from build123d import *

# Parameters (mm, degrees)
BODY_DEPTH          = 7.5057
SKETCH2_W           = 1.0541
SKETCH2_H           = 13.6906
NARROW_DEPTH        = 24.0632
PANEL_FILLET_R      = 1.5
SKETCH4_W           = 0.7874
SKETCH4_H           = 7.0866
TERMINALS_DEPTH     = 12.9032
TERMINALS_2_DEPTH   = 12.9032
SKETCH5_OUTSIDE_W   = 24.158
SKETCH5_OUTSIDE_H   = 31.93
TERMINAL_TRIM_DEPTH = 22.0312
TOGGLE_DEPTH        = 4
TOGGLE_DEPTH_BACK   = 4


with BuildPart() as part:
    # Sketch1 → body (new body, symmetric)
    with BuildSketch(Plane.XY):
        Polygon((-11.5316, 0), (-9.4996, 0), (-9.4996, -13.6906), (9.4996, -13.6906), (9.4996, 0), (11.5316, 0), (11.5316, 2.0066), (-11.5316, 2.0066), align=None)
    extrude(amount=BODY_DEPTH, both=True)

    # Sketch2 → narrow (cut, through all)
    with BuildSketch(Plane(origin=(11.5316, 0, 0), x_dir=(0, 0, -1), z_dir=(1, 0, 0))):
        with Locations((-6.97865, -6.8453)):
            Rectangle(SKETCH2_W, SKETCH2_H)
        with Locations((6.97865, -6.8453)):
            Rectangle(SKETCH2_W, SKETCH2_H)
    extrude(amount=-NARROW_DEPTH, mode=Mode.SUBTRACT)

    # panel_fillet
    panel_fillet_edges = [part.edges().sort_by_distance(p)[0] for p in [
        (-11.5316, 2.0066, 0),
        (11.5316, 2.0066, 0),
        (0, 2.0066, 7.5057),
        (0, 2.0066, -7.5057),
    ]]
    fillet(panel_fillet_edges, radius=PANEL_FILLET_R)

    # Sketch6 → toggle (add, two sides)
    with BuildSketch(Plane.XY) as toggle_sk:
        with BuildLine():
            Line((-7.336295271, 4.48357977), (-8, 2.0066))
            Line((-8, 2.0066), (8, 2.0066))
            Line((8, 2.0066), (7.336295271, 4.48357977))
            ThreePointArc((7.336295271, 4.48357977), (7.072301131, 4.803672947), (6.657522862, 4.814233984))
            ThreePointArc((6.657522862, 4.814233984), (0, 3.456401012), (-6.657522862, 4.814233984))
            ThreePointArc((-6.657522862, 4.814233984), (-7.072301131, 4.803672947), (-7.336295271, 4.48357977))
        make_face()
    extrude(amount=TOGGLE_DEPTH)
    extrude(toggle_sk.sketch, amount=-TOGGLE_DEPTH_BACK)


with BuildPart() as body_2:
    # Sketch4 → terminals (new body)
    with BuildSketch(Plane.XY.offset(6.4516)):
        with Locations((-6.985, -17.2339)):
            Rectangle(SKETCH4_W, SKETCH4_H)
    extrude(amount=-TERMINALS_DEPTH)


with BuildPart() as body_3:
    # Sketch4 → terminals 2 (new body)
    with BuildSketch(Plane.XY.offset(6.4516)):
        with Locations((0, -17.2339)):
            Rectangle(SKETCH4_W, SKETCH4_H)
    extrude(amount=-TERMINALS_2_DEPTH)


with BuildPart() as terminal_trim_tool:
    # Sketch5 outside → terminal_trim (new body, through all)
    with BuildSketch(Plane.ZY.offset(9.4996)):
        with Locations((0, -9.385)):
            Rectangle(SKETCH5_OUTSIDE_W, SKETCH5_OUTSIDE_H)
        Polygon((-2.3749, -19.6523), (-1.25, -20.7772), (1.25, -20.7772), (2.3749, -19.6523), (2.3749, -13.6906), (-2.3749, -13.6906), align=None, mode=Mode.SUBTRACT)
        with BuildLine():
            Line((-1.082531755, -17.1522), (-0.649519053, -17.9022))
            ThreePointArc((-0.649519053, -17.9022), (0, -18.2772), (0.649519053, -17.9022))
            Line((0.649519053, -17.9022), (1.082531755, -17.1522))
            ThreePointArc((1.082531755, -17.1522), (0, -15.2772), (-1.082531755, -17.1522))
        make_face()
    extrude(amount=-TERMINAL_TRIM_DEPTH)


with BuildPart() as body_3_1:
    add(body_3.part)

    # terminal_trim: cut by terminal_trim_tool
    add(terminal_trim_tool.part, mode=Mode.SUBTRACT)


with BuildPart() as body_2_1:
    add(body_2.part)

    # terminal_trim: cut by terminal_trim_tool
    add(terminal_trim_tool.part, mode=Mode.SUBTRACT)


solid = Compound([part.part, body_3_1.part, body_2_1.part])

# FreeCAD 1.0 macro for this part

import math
import FreeCAD as App
import Part
import Sketcher
from FreeCAD import Vector
Q = App.Units.Quantity


def edges_at(feature, points):
    """Names of the edges that pass closest to the given points."""
    edges = feature.Shape.Edges
    near = lambda p: min(range(len(edges)), key=lambda i: edges[i].distToShape(Part.Vertex(*p))[0])
    return sorted({f"Edge{near(p) + 1}" for p in points})

doc = App.newDocument("Part")
body = doc.addObject("PartDesign::Body", "Body")

sketch1 = doc.addObject("Sketcher::SketchObject", "Sketch")
body.addObject(sketch1)
sketch1.AttachmentSupport = (doc.XY_Plane, [""])
sketch1.MapMode = "FlatFace"
sketch1.addGeometry(Part.LineSegment(Vector(-11.5, 0, 0), Vector(-9.5, 0, 0)), False)
sketch1.addGeometry(Part.LineSegment(Vector(-9.5, 0, 0), Vector(-9.5, -13.7, 0)), False)
sketch1.addGeometry(Part.LineSegment(Vector(-9.5, -13.7, 0), Vector(9.5, -13.7, 0)), False)
sketch1.addGeometry(Part.LineSegment(Vector(9.5, -13.7, 0), Vector(9.5, 0, 0)), False)
sketch1.addGeometry(Part.LineSegment(Vector(9.5, 0, 0), Vector(11.5, 0, 0)), False)
sketch1.addGeometry(Part.LineSegment(Vector(11.5, 0, 0), Vector(11.5, 2, 0)), False)
sketch1.addGeometry(Part.LineSegment(Vector(11.5, 2, 0), Vector(-11.5, 2, 0)), False)
sketch1.addGeometry(Part.LineSegment(Vector(-11.5, 2, 0), Vector(-11.5, 0, 0)), False)
sketch1.addConstraint(Sketcher.Constraint("Coincident", 0, 2, 1, 1))
sketch1.addConstraint(Sketcher.Constraint("Coincident", 1, 2, 2, 1))
sketch1.addConstraint(Sketcher.Constraint("Coincident", 2, 2, 3, 1))
sketch1.addConstraint(Sketcher.Constraint("Coincident", 3, 2, 4, 1))
sketch1.addConstraint(Sketcher.Constraint("Coincident", 4, 2, 5, 1))
sketch1.addConstraint(Sketcher.Constraint("Coincident", 5, 2, 6, 1))
sketch1.addConstraint(Sketcher.Constraint("Coincident", 6, 2, 7, 1))
sketch1.addConstraint(Sketcher.Constraint("Coincident", 7, 2, 0, 1))
sketch1.addConstraint(Sketcher.Constraint("Horizontal", 0))
sketch1.addConstraint(Sketcher.Constraint("Vertical", 1))
sketch1.addConstraint(Sketcher.Constraint("Horizontal", 2))
sketch1.addConstraint(Sketcher.Constraint("Vertical", 3))
sketch1.addConstraint(Sketcher.Constraint("Horizontal", 4))
sketch1.addConstraint(Sketcher.Constraint("Vertical", 5))
sketch1.addConstraint(Sketcher.Constraint("Horizontal", 6))
sketch1.addConstraint(Sketcher.Constraint("Vertical", 7))
sketch1.addConstraint(Sketcher.Constraint("Symmetric", 0, 2, 3, 2, -1, 1))
sketch1.addConstraint(Sketcher.Constraint("Symmetric", 4, 2, 7, 2, -2))
sketch1.addConstraint(Sketcher.Constraint("DistanceX", 0, 1, 0, 2, Q("0.08 in")))
sketch1.addConstraint(Sketcher.Constraint("DistanceX", 2, 1, 2, 2, Q("0.748 in")))
sketch1.addConstraint(Sketcher.Constraint("DistanceY", 1, 2, 1, 1, Q("0.539 in")))
sketch1.addConstraint(Sketcher.Constraint("DistanceY", 5, 1, 5, 2, Q("0.079 in")))
pad1 = doc.addObject("PartDesign::Pad", "Pad")
body.addObject(pad1)
pad1.Profile = sketch1
pad1.Length = Q("0.591 in")
pad1.Midplane = True

sketch2 = doc.addObject("Sketcher::SketchObject", "Sketch001")
body.addObject(sketch2)
sketch2.AttachmentSupport = (doc.YZ_Plane, [""])
sketch2.MapMode = "FlatFace"
sketch2.AttachmentOffset = App.Placement(Vector(0, 0, 0.454 * 25.4), App.Rotation())
sketch2.addGeometry(Part.LineSegment(Vector(0, 7.5, 0), Vector(-13.7, 7.5, 0)), False)
sketch2.addGeometry(Part.LineSegment(Vector(-13.7, 7.5, 0), Vector(-13.7, 6.5, 0)), False)
sketch2.addGeometry(Part.LineSegment(Vector(-13.7, 6.5, 0), Vector(0, 6.5, 0)), False)
sketch2.addGeometry(Part.LineSegment(Vector(0, 6.5, 0), Vector(0, 7.5, 0)), False)
sketch2.addGeometry(Part.LineSegment(Vector(0, -6.5, 0), Vector(-13.7, -6.5, 0)), False)
sketch2.addGeometry(Part.LineSegment(Vector(-13.7, -6.5, 0), Vector(-13.7, -7.5, 0)), False)
sketch2.addGeometry(Part.LineSegment(Vector(-13.7, -7.5, 0), Vector(0, -7.5, 0)), False)
sketch2.addGeometry(Part.LineSegment(Vector(0, -7.5, 0), Vector(0, -6.5, 0)), False)
sketch2.addConstraint(Sketcher.Constraint("Coincident", 0, 2, 1, 1))
sketch2.addConstraint(Sketcher.Constraint("Coincident", 1, 2, 2, 1))
sketch2.addConstraint(Sketcher.Constraint("Coincident", 2, 2, 3, 1))
sketch2.addConstraint(Sketcher.Constraint("Coincident", 3, 2, 0, 1))
sketch2.addConstraint(Sketcher.Constraint("Coincident", 4, 2, 5, 1))
sketch2.addConstraint(Sketcher.Constraint("Coincident", 5, 2, 6, 1))
sketch2.addConstraint(Sketcher.Constraint("Coincident", 6, 2, 7, 1))
sketch2.addConstraint(Sketcher.Constraint("Coincident", 7, 2, 4, 1))
sketch2.addConstraint(Sketcher.Constraint("Horizontal", 0))
sketch2.addConstraint(Sketcher.Constraint("Vertical", 1))
sketch2.addConstraint(Sketcher.Constraint("Horizontal", 2))
sketch2.addConstraint(Sketcher.Constraint("Vertical", 3))
sketch2.addConstraint(Sketcher.Constraint("Horizontal", 4))
sketch2.addConstraint(Sketcher.Constraint("Vertical", 5))
sketch2.addConstraint(Sketcher.Constraint("Horizontal", 6))
sketch2.addConstraint(Sketcher.Constraint("Vertical", 7))
sketch2.addConstraint(Sketcher.Constraint("Symmetric", 3, 2, 6, 2, -1, 1))
sketch2.addConstraint(Sketcher.Constraint("Symmetric", 1, 2, 4, 2, -1))
sketch2.addConstraint(Sketcher.Constraint("PointOnObject", 2, 2, -2))
sketch2.addConstraint(Sketcher.Constraint("DistanceX", 0, 2, 0, 1, Q("0.539 in")))
sketch2.addConstraint(Sketcher.Constraint("DistanceY", 1, 2, 1, 1, Q("0.0415 in")))
sketch2.addConstraint(Sketcher.Constraint("DistanceY", -1, 1, 1, 2, Q("0.254 in")))
pocket1 = doc.addObject("PartDesign::Pocket", "Pocket")
body.addObject(pocket1)
pocket1.Profile = sketch2
pocket1.Type = "ThroughAll"
doc.recompute()

fillet = doc.addObject("PartDesign::Fillet", "Fillet")
body.addObject(fillet)
fillet.Base = (pocket1, edges_at(pocket1, [
    (-11.532, 2.007, 0),
    (11.532, 2.007, 0),
    (0, 2.007, 7.506),
    (0, 2.007, -7.506),
]))
fillet.Radius = 1.5

sketch3 = doc.addObject("Sketcher::SketchObject", "Sketch002")
body.addObject(sketch3)
sketch3.AttachmentSupport = (doc.XY_Plane, [""])
sketch3.MapMode = "FlatFace"
sketch3.addGeometry(Part.LineSegment(Vector(-7.3, 4.5, 0), Vector(-8, 2, 0)), False)
sketch3.addGeometry(Part.LineSegment(Vector(-8, 2, 0), Vector(8, 2, 0)), False)
sketch3.addGeometry(Part.LineSegment(Vector(8, 2, 0), Vector(7.3, 4.5, 0)), False)
sketch3.addGeometry(Part.ArcOfCircle(Part.Circle(Vector(6.9, 4.4, 0), Vector(0, 0, 1), 0.5), math.radians(15), math.radians(113)), False)
sketch3.addGeometry(Part.ArcOfCircle(Part.Circle(Vector(0, 20.5, 0), Vector(0, 0, 1), 17), math.radians(-113), math.radians(-67)), False)
sketch3.addGeometry(Part.ArcOfCircle(Part.Circle(Vector(-6.9, 4.4, 0), Vector(0, 0, 1), 0.5), math.radians(67), math.radians(165)), False)
sketch3.addConstraint(Sketcher.Constraint("Coincident", 0, 2, 1, 1))
sketch3.addConstraint(Sketcher.Constraint("Coincident", 1, 2, 2, 1))
sketch3.addConstraint(Sketcher.Constraint("Tangent", 2, 2, 3, 1))
sketch3.addConstraint(Sketcher.Constraint("Tangent", 3, 2, 4, 2))
sketch3.addConstraint(Sketcher.Constraint("Tangent", 4, 1, 5, 1))
sketch3.addConstraint(Sketcher.Constraint("Tangent", 5, 2, 0, 1))
sketch3.addConstraint(Sketcher.Constraint("Horizontal", 1))
sketch3.addConstraint(Sketcher.Constraint("Equal", 3, 5))
sketch3.addConstraint(Sketcher.Constraint("Symmetric", 3, 3, 5, 3, -2))
sketch3.addConstraint(Sketcher.Constraint("Horizontal", 2, 2, 5, 2))
sketch3.addConstraint(Sketcher.Constraint("Angle", 0, Q("-105 deg")))
sketch3.addConstraint(Sketcher.Constraint("Radius", 3, Q("0.5 mm")))
sketch3.addConstraint(Sketcher.Constraint("Radius", 4, Q("17 mm")))
sketch3.addConstraint(Sketcher.Constraint("DistanceY", -1, 1, 0, 2, Q("0.079 in")))
sketch3.addConstraint(Sketcher.Constraint("DistanceX", 1, 1, 1, 2, Q("16 mm")))
sketch3.addConstraint(Sketcher.Constraint("DistanceY", -1, 1, 4, 3, Q("20.456401 mm")))
pad2 = doc.addObject("PartDesign::Pad", "Pad001")
body.addObject(pad2)
pad2.Profile = sketch3
pad2.Type = "TwoLengths"
pad2.Length = 4
pad2.Length2 = 4
body2 = doc.addObject("PartDesign::Body", "Body001")

sketch4 = doc.addObject("Sketcher::SketchObject", "Sketch003")
body2.addObject(sketch4)
sketch4.AttachmentSupport = (doc.getObject("XY_Plane001"), [""])
sketch4.MapMode = "FlatFace"
sketch4.AttachmentOffset = App.Placement(Vector(0, 0, 0.254 * 25.4), App.Rotation())
sketch4.addGeometry(Part.LineSegment(Vector(-7.4, -13.7, 0), Vector(-7.4, -20.8, 0)), False)
sketch4.addGeometry(Part.LineSegment(Vector(-7.4, -20.8, 0), Vector(-6.6, -20.8, 0)), False)
sketch4.addGeometry(Part.LineSegment(Vector(-6.6, -20.8, 0), Vector(-6.6, -13.7, 0)), False)
sketch4.addGeometry(Part.LineSegment(Vector(-6.6, -13.7, 0), Vector(-7.4, -13.7, 0)), False)
sketch4.addConstraint(Sketcher.Constraint("Coincident", 0, 2, 1, 1))
sketch4.addConstraint(Sketcher.Constraint("Coincident", 1, 2, 2, 1))
sketch4.addConstraint(Sketcher.Constraint("Coincident", 2, 2, 3, 1))
sketch4.addConstraint(Sketcher.Constraint("Coincident", 3, 2, 0, 1))
sketch4.addConstraint(Sketcher.Constraint("Vertical", 0))
sketch4.addConstraint(Sketcher.Constraint("Horizontal", 1))
sketch4.addConstraint(Sketcher.Constraint("Vertical", 2))
sketch4.addConstraint(Sketcher.Constraint("Horizontal", 3))
sketch4.addConstraint(Sketcher.Constraint("DistanceX", 1, 1, 1, 2, Q("0.031 in")))
sketch4.addConstraint(Sketcher.Constraint("DistanceY", 0, 2, 0, 1, Q("0.279 in")))
sketch4.addConstraint(Sketcher.Constraint("DistanceY", 0, 2, -1, 1, Q("0.818 in")))
sketch4.addConstraint(Sketcher.Constraint("DistanceX", 0, 2, -1, 1, Q("0.2905 in")))
pad3 = doc.addObject("PartDesign::Pad", "Pad002")
body2.addObject(pad3)
pad3.Profile = sketch4
pad3.Length = Q("0.508 in")
pad3.Reversed = True
body3 = doc.addObject("PartDesign::Body", "Body002")

sketch5 = doc.addObject("Sketcher::SketchObject", "Sketch004")
body3.addObject(sketch5)
sketch5.AttachmentSupport = (doc.getObject("XY_Plane002"), [""])
sketch5.MapMode = "FlatFace"
sketch5.AttachmentOffset = App.Placement(Vector(0, 0, 0.254 * 25.4), App.Rotation())
sketch5.addGeometry(Part.LineSegment(Vector(-0.4, -13.7, 0), Vector(-0.4, -20.8, 0)), False)
sketch5.addGeometry(Part.LineSegment(Vector(-0.4, -20.8, 0), Vector(0.4, -20.8, 0)), False)
sketch5.addGeometry(Part.LineSegment(Vector(0.4, -20.8, 0), Vector(0.4, -13.7, 0)), False)
sketch5.addGeometry(Part.LineSegment(Vector(0.4, -13.7, 0), Vector(-0.4, -13.7, 0)), False)
sketch5.addConstraint(Sketcher.Constraint("Coincident", 0, 2, 1, 1))
sketch5.addConstraint(Sketcher.Constraint("Coincident", 1, 2, 2, 1))
sketch5.addConstraint(Sketcher.Constraint("Coincident", 2, 2, 3, 1))
sketch5.addConstraint(Sketcher.Constraint("Coincident", 3, 2, 0, 1))
sketch5.addConstraint(Sketcher.Constraint("Vertical", 0))
sketch5.addConstraint(Sketcher.Constraint("Horizontal", 1))
sketch5.addConstraint(Sketcher.Constraint("Vertical", 2))
sketch5.addConstraint(Sketcher.Constraint("Horizontal", 3))
sketch5.addConstraint(Sketcher.Constraint("DistanceX", 1, 1, 1, 2, Q("0.031 in")))
sketch5.addConstraint(Sketcher.Constraint("DistanceY", 0, 2, 0, 1, Q("0.279 in")))
sketch5.addConstraint(Sketcher.Constraint("DistanceY", 0, 2, -1, 1, Q("0.818 in")))
sketch5.addConstraint(Sketcher.Constraint("DistanceX", 0, 2, -1, 1, Q("0.0155 in")))
pad4 = doc.addObject("PartDesign::Pad", "Pad003")
body3.addObject(pad4)
pad4.Profile = sketch5
pad4.Length = Q("0.508 in")
pad4.Reversed = True
body4 = doc.addObject("PartDesign::Body", "Body003")
body4.AllowCompound = True

sketch6 = doc.addObject("Sketcher::SketchObject", "Sketch005")
body4.addObject(sketch6)
sketch6.AttachmentSupport = (doc.getObject("YZ_Plane003"), [""])
sketch6.MapMode = "FlatFace"
sketch6.AttachmentOffset = App.Placement(Vector(0, 0, -0.374 * 25.4), App.Rotation())
sketch6.addGeometry(Part.LineSegment(Vector(6.6, -12.1, 0), Vector(-25.4, -12.1, 0)), False)
sketch6.addGeometry(Part.LineSegment(Vector(-25.4, -12.1, 0), Vector(-25.4, 12.1, 0)), False)
sketch6.addGeometry(Part.LineSegment(Vector(-25.4, 12.1, 0), Vector(6.6, 12.1, 0)), False)
sketch6.addGeometry(Part.LineSegment(Vector(6.6, 12.1, 0), Vector(6.6, -12.1, 0)), False)
sketch6.addGeometry(Part.LineSegment(Vector(-20.8, -1.2, 0), Vector(-19.7, -2.4, 0)), False)
sketch6.addGeometry(Part.LineSegment(Vector(-19.7, -2.4, 0), Vector(-13.7, -2.4, 0)), False)
sketch6.addGeometry(Part.LineSegment(Vector(-13.7, -2.4, 0), Vector(-13.7, 2.4, 0)), False)
sketch6.addGeometry(Part.LineSegment(Vector(-13.7, 2.4, 0), Vector(-19.7, 2.4, 0)), False)
sketch6.addGeometry(Part.LineSegment(Vector(-19.7, 2.4, 0), Vector(-20.8, 1.2, 0)), False)
sketch6.addGeometry(Part.LineSegment(Vector(-20.8, 1.2, 0), Vector(-20.8, -1.2, 0)), False)
sketch6.addGeometry(Part.LineSegment(Vector(-17.2, -1.1, 0), Vector(-17.9, -0.6, 0)), False)
sketch6.addGeometry(Part.ArcOfCircle(Part.Circle(Vector(-17.5, 0, 0), Vector(0, 0, 1), 0.8), math.radians(120), math.radians(240)), False)
sketch6.addGeometry(Part.LineSegment(Vector(-17.9, 0.6, 0), Vector(-17.2, 1.1, 0)), False)
sketch6.addGeometry(Part.ArcOfCircle(Part.Circle(Vector(-16.5, 0, 0), Vector(0, 0, 1), 1.2), math.radians(-120), math.radians(120)), False)
sketch6.addConstraint(Sketcher.Constraint("Coincident", 0, 2, 1, 1))
sketch6.addConstraint(Sketcher.Constraint("Coincident", 1, 2, 2, 1))
sketch6.addConstraint(Sketcher.Constraint("Coincident", 2, 2, 3, 1))
sketch6.addConstraint(Sketcher.Constraint("Coincident", 3, 2, 0, 1))
sketch6.addConstraint(Sketcher.Constraint("Coincident", 4, 2, 5, 1))
sketch6.addConstraint(Sketcher.Constraint("Coincident", 5, 2, 6, 1))
sketch6.addConstraint(Sketcher.Constraint("Coincident", 6, 2, 7, 1))
sketch6.addConstraint(Sketcher.Constraint("Coincident", 7, 2, 8, 1))
sketch6.addConstraint(Sketcher.Constraint("Coincident", 8, 2, 9, 1))
sketch6.addConstraint(Sketcher.Constraint("Coincident", 9, 2, 4, 1))
sketch6.addConstraint(Sketcher.Constraint("Tangent", 10, 2, 11, 2))
sketch6.addConstraint(Sketcher.Constraint("Tangent", 11, 1, 12, 1))
sketch6.addConstraint(Sketcher.Constraint("Tangent", 12, 2, 13, 2))
sketch6.addConstraint(Sketcher.Constraint("Tangent", 13, 1, 10, 1))
sketch6.addConstraint(Sketcher.Constraint("Horizontal", 0))
sketch6.addConstraint(Sketcher.Constraint("Vertical", 1))
sketch6.addConstraint(Sketcher.Constraint("Horizontal", 2))
sketch6.addConstraint(Sketcher.Constraint("Vertical", 3))
sketch6.addConstraint(Sketcher.Constraint("Horizontal", 5))
sketch6.addConstraint(Sketcher.Constraint("Vertical", 6))
sketch6.addConstraint(Sketcher.Constraint("Horizontal", 7))
sketch6.addConstraint(Sketcher.Constraint("Vertical", 9))
sketch6.addConstraint(Sketcher.Constraint("Symmetric", 4, 2, 7, 2, -1))
sketch6.addConstraint(Sketcher.Constraint("Symmetric", 10, 2, 11, 1, -1))
sketch6.addConstraint(Sketcher.Constraint("Perpendicular", 4, 8))
sketch6.addConstraint(Sketcher.Constraint("Equal", 4, 8))
sketch6.addConstraint(Sketcher.Constraint("Angle", 10, Q("150 deg")))
sketch6.addConstraint(Sketcher.Constraint("DistanceY", 6, 1, 6, 2, Q("0.187 in")))
sketch6.addConstraint(Sketcher.Constraint("Radius", 11, Q("0.75 mm")))
sketch6.addConstraint(Sketcher.Constraint("Radius", 13, Q("1.25 mm")))
sketch6.addConstraint(Sketcher.Constraint("DistanceX", 5, 2, -1, 1, Q("0.539 in")))
sketch6.addConstraint(Sketcher.Constraint("DistanceX", 8, 2, -1, 1, Q("0.818 in")))
sketch6.addConstraint(Sketcher.Constraint("DistanceX", 0, 2, 0, 1, Q("31.93 mm")))
sketch6.addConstraint(Sketcher.Constraint("DistanceX", 5, 1, 5, 2, Q("5.9617 mm")))
sketch6.addConstraint(Sketcher.Constraint("DistanceY", 1, 1, 1, 2, Q("24.158 mm")))
sketch6.addConstraint(Sketcher.Constraint("DistanceX", 11, 3, -1, 1, Q("17.5272 mm")))
sketch6.addConstraint(Sketcher.Constraint("DistanceX", 0, 2, -1, 1, Q("25.35 mm")))
sketch6.addConstraint(Sketcher.Constraint("DistanceY", 0, 2, -1, 1, Q("12.079 mm")))
pad5 = doc.addObject("PartDesign::Pad", "Pad004")
body4.addObject(pad5)
pad5.Profile = sketch6
pad5.Length = 22.0312
doc.recompute()

body5 = doc.addObject("PartDesign::Body", "Body004")
body5.BaseFeature = body4
boolean = doc.addObject("PartDesign::Boolean", "Boolean")
body3.addObject(boolean)
boolean.Type = "Cut"
boolean.addObjects([body5])
doc.recompute()

boolean2 = doc.addObject("PartDesign::Boolean", "Boolean001")
body2.addObject(boolean2)
boolean2.Type = "Cut"
boolean2.addObjects([body4])

doc.recompute()
